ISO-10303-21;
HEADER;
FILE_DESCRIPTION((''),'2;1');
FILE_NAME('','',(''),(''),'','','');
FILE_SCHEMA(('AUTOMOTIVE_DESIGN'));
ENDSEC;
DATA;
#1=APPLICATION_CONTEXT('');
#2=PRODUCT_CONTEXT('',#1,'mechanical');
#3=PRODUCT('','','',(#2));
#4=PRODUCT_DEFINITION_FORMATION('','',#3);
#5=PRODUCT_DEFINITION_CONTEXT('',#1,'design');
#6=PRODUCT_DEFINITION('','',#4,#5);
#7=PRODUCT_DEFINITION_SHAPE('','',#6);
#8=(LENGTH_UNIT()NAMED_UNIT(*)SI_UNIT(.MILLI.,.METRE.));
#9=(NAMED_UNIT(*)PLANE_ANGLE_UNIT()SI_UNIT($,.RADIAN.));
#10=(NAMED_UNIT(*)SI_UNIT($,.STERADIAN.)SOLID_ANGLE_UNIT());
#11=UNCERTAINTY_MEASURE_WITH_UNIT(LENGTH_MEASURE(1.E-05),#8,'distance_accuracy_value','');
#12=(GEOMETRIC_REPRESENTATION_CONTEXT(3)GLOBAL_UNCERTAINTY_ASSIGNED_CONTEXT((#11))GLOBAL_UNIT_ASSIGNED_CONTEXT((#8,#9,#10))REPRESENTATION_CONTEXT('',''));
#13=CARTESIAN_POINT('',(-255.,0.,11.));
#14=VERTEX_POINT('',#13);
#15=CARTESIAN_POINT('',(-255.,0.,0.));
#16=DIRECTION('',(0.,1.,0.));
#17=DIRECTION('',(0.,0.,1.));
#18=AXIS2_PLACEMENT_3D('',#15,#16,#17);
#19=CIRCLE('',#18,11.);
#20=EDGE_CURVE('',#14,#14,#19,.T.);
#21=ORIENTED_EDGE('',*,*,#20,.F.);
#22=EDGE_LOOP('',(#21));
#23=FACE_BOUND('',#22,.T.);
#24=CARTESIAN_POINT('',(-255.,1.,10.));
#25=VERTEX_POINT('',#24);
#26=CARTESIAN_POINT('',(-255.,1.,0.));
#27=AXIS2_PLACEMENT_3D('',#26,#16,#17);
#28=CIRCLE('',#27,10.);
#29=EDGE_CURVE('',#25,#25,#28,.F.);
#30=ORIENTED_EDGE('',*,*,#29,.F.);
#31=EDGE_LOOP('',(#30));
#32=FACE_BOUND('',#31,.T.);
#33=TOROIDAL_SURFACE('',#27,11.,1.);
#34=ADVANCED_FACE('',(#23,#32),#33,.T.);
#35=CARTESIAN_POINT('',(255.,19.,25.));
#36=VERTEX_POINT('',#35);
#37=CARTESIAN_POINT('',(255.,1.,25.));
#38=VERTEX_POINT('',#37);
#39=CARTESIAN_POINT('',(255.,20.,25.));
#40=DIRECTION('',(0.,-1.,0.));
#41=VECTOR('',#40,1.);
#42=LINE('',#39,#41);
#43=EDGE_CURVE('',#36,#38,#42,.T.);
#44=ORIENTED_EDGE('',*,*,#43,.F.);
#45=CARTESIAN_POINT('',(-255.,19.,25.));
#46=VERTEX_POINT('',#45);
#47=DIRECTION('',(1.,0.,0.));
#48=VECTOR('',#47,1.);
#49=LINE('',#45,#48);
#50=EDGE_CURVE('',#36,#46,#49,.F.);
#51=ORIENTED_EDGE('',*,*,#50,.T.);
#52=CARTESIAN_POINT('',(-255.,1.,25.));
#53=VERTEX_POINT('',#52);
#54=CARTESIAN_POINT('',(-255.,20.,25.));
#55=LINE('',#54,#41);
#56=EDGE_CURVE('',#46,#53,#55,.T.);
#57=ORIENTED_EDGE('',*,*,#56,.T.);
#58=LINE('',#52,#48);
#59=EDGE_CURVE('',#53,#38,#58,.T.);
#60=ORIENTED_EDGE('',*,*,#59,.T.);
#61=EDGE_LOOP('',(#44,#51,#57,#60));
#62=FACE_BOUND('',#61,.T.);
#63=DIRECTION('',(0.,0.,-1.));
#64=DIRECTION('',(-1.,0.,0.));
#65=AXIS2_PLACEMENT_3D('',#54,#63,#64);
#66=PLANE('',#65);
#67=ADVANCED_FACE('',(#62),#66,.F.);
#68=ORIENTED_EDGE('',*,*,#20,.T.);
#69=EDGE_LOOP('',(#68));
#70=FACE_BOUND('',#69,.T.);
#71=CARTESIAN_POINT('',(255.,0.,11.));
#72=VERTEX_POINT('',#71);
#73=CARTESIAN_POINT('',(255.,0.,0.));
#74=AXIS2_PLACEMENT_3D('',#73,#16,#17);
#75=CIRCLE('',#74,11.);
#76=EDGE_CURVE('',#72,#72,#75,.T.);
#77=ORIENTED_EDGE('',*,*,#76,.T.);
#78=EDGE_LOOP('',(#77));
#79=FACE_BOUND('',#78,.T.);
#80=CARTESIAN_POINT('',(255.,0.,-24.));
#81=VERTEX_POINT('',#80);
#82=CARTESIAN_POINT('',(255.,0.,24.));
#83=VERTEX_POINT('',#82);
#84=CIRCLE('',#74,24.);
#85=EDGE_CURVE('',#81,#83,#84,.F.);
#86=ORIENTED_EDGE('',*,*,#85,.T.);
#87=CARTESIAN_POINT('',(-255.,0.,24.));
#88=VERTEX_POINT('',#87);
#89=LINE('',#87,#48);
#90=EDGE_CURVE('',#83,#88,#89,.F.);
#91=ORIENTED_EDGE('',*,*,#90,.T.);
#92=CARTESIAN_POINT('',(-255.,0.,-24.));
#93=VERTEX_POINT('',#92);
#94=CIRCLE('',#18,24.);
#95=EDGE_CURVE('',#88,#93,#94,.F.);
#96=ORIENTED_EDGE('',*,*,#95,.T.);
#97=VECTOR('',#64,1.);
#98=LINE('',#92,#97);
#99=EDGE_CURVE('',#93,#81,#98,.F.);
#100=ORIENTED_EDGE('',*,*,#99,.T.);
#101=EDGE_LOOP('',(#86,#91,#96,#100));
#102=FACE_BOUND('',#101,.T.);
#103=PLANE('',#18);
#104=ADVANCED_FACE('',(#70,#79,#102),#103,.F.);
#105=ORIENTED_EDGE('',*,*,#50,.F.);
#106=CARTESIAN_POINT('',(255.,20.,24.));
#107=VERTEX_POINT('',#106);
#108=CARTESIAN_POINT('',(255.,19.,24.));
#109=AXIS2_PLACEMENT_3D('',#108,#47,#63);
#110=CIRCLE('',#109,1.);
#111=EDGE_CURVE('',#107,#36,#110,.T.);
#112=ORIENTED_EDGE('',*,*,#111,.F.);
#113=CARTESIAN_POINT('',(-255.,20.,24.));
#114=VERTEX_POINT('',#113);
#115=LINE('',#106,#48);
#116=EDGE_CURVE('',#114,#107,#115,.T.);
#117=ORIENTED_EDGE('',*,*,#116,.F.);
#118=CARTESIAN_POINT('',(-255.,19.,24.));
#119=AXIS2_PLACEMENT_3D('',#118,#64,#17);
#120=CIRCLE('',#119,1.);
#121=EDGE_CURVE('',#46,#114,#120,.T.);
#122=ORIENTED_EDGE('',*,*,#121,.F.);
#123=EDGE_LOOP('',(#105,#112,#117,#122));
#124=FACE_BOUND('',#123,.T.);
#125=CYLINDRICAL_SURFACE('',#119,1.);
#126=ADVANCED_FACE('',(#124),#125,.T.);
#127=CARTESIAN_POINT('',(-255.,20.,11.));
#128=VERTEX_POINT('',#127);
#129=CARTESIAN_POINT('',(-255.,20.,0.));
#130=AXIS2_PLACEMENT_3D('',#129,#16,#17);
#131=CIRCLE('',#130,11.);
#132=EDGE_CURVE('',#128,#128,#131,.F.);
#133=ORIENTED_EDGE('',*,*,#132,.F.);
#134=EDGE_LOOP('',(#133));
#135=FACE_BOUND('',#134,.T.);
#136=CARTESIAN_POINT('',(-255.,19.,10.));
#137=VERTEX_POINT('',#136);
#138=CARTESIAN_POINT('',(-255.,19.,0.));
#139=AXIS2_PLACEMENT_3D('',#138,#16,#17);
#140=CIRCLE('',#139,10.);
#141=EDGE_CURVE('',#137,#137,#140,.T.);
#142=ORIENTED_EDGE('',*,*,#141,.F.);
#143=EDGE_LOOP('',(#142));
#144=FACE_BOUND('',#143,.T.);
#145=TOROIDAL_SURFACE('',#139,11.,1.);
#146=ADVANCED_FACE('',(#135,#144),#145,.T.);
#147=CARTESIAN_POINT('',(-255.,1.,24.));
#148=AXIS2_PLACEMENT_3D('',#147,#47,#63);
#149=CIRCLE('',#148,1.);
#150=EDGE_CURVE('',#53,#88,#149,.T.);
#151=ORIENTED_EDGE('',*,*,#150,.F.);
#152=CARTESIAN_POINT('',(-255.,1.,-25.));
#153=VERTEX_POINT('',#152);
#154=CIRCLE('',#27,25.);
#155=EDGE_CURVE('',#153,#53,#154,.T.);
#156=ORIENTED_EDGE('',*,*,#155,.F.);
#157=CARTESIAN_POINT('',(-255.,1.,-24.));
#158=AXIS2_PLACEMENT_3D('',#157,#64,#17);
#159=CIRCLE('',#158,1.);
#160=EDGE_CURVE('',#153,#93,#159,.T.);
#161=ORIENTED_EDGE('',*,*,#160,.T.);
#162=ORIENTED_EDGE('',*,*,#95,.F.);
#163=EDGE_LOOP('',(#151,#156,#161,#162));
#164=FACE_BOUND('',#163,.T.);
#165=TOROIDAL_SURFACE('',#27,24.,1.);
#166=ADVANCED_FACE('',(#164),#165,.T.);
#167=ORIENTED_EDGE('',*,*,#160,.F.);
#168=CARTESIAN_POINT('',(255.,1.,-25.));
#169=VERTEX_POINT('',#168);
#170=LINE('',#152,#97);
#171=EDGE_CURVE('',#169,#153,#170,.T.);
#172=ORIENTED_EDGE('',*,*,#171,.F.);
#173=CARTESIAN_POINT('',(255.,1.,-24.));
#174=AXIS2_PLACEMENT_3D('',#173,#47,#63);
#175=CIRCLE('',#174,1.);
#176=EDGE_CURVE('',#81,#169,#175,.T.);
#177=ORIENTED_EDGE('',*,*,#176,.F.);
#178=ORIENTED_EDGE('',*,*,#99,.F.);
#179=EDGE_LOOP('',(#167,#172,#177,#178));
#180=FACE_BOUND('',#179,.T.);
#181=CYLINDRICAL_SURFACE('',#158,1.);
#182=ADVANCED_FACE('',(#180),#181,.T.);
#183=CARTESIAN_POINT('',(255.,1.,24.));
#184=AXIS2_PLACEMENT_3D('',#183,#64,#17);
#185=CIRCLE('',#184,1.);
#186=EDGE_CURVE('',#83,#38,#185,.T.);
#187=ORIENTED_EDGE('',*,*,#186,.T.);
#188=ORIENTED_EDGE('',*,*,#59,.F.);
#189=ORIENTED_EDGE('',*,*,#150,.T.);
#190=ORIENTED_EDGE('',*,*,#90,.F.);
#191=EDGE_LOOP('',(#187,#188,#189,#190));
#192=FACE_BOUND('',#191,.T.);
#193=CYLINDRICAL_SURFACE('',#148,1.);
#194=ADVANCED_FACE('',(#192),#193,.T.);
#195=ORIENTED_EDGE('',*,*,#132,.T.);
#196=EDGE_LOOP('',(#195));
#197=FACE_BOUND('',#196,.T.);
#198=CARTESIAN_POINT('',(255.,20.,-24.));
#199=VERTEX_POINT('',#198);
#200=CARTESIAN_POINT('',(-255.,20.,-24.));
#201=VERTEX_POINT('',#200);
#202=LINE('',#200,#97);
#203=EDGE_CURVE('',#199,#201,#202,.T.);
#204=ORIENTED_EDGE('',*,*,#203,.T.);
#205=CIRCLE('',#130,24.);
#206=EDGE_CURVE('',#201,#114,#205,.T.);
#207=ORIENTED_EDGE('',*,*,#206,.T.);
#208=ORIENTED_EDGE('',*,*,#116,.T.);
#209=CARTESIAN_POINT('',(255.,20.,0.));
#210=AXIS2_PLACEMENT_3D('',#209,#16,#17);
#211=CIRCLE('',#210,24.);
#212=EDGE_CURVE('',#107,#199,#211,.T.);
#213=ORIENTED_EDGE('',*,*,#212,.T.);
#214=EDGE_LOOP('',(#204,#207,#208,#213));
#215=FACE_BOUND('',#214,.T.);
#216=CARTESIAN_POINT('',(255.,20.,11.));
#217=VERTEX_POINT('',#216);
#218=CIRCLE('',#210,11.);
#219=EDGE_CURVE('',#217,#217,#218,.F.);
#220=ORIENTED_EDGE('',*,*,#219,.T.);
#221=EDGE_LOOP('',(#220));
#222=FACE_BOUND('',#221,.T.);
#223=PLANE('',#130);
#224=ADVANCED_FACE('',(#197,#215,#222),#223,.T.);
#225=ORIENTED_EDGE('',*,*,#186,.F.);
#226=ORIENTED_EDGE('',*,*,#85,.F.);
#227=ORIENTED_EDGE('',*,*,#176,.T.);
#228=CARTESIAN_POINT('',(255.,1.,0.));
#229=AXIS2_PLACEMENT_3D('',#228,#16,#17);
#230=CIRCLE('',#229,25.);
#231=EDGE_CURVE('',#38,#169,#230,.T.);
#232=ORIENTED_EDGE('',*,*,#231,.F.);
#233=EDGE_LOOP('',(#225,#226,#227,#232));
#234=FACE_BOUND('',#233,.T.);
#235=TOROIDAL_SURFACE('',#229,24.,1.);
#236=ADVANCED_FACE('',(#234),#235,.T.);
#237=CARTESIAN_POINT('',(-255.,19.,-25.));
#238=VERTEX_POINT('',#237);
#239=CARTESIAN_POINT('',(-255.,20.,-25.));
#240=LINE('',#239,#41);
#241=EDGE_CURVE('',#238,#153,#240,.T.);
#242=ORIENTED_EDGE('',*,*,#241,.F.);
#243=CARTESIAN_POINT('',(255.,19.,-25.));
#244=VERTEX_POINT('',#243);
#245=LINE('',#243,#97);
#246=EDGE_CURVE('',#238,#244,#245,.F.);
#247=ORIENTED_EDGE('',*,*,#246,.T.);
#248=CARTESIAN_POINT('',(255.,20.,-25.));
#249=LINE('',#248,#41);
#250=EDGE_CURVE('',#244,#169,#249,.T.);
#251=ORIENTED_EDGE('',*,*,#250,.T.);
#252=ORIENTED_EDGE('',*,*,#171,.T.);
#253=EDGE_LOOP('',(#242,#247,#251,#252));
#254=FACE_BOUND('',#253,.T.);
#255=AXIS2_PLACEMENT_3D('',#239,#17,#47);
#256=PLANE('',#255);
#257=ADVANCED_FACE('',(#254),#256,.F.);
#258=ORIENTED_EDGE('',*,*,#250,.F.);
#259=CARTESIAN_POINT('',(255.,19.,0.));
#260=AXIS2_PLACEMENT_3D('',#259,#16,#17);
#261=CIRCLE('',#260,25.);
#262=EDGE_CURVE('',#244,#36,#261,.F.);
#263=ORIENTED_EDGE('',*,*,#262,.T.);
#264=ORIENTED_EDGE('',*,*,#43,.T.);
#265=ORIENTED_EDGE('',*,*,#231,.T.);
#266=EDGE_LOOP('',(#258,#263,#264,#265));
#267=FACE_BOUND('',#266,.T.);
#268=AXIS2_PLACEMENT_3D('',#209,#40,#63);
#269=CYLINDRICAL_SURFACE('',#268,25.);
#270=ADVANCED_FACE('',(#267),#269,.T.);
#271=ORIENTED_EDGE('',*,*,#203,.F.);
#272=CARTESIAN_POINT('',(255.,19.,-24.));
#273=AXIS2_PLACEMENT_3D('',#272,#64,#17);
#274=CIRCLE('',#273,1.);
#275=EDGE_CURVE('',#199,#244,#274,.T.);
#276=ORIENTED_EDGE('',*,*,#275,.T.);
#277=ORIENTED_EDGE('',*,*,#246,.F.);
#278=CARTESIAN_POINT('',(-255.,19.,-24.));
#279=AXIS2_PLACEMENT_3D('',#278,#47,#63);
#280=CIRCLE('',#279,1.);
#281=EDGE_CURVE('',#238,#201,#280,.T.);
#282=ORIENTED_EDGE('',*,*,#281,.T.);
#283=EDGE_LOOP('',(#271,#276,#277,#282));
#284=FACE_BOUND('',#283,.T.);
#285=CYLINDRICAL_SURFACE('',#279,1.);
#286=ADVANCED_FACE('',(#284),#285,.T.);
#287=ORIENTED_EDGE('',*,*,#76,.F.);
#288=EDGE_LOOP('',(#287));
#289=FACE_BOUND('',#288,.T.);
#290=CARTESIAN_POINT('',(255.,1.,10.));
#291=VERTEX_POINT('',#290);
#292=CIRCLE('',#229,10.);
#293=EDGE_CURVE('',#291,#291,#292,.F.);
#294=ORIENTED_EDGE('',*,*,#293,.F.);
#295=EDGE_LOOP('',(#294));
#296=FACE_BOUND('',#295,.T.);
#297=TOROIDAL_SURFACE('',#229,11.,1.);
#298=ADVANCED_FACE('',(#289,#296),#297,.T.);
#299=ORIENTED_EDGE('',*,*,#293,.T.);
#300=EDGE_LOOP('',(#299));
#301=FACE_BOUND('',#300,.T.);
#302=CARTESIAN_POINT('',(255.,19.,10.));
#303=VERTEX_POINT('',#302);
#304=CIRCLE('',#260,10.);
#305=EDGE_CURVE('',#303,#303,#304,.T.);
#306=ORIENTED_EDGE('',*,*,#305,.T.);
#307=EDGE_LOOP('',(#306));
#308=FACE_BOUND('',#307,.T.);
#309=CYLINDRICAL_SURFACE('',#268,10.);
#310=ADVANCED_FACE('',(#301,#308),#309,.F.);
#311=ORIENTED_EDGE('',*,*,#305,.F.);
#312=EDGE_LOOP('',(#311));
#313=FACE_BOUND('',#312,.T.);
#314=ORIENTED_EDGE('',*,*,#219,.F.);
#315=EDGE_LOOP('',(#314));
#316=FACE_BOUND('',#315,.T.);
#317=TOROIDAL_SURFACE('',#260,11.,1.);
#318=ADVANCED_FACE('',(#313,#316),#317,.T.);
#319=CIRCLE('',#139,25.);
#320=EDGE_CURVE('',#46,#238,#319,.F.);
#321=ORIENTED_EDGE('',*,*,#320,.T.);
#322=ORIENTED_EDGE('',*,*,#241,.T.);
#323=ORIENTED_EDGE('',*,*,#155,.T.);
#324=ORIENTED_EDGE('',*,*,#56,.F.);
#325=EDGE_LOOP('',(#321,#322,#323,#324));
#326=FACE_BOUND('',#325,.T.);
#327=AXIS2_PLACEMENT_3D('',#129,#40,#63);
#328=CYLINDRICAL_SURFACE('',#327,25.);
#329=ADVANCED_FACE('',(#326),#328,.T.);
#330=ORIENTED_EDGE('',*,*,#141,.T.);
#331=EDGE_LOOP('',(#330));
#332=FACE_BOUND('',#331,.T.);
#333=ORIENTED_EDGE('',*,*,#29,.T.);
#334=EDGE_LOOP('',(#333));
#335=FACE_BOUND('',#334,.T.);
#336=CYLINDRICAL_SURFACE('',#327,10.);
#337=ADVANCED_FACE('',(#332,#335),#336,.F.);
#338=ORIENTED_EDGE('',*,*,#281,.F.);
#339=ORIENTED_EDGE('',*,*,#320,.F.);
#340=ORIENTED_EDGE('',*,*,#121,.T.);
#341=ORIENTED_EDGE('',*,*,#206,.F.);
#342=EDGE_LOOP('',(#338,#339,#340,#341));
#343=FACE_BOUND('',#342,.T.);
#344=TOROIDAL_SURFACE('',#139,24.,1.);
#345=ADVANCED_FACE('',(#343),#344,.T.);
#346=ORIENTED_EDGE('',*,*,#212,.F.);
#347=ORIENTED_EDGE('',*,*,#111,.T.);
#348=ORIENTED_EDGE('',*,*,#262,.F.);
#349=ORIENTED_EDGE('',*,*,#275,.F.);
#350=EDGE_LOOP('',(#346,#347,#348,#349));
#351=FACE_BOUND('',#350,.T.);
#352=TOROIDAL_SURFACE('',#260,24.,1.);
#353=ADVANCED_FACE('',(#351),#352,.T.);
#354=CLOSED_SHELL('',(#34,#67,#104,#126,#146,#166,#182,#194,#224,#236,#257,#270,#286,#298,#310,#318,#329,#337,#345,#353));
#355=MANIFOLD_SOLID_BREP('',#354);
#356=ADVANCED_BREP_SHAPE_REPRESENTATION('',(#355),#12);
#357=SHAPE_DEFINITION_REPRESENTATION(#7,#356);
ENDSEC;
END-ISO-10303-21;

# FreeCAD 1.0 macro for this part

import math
import FreeCAD as App
import Part
import Sketcher

V = App.Vector


def edges_at(feature, points):
    """Names of the edges that pass closest to the given points."""
    edges = feature.Shape.Edges
    near = lambda p: min(range(len(edges)), key=lambda i: edges[i].distToShape(Part.Vertex(*p))[0])
    return sorted({f"Edge{near(p) + 1}" for p in points})

doc = App.newDocument("Part")
params = doc.addObject("Spreadsheet::Sheet", "Params")
for row, (alias, value) in enumerate([
    ("sketch1_diameter", "20 mm"),
    ("sketch1_radius", "25 mm"),
    ("sketch1_width", "510 mm"),
    ("pad1_length", "20 mm"),
    ("fillet_radius", "1 mm"),
], start=1):
    params.set(f"A{row}", alias)
    params.set(f"B{row}", "=" + value)
    params.setAlias(f"B{row}", alias)

body = doc.addObject("PartDesign::Body", "Body")

sketch1 = body.newObject("Sketcher::SketchObject", "Sketch")
sketch1.AttachmentSupport = (doc.getObject("XZ_Plane"), [""])
sketch1.MapMode = "FlatFace"
sketch1.addGeometry([
    Part.LineSegment(V(255, -25, 0), V(-255, -25, 0)),
    Part.ArcOfCircle(Part.Circle(V(-255, 0, 0), V(0, 0, 1), 25), math.radians(90), math.radians(270)),
    Part.LineSegment(V(-255, 25, 0), V(255, 25, 0)),
    Part.ArcOfCircle(Part.Circle(V(255, 0, 0), V(0, 0, 1), 25), math.radians(-90), math.radians(90)),
    Part.Circle(V(255, 0, 0), V(0, 0, 1), 10),
    Part.Circle(V(-255, 0, 0), V(0, 0, 1), 10),
], False)
sketch1.addConstraint([
    Sketcher.Constraint("Tangent", 0, 2, 1, 2),
    Sketcher.Constraint("Tangent", 1, 1, 2, 1),
    Sketcher.Constraint("Tangent", 2, 2, 3, 2),
    Sketcher.Constraint("Tangent", 3, 1, 0, 1),
    Sketcher.Constraint("Horizontal", 0),
    Sketcher.Constraint("Horizontal", 2),
    Sketcher.Constraint("Coincident", 4, 3, 3, 3),
    Sketcher.Constraint("Coincident", 5, 3, 1, 3),
    Sketcher.Constraint("Equal", 4, 5),
    Sketcher.Constraint("Symmetric", 1, 3, 3, 3, -1, 1),
    Sketcher.Constraint("Diameter", 4, 20.0),
    Sketcher.Constraint("Radius", 1, 25.0),
    Sketcher.Constraint("DistanceX", 0, 2, 0, 1, 510.0),
])
sketch1.setExpression("Constraints[10]", "Params.sketch1_diameter")
sketch1.setExpression("Constraints[11]", "Params.sketch1_radius")
sketch1.setExpression("Constraints[12]", "Params.sketch1_width")
pad1 = body.newObject("PartDesign::Pad", "Pad")
pad1.Profile = sketch1
pad1.setExpression("Length", "Params.pad1_length")
pad1.Reversed = True
doc.recompute()

fillet = body.newObject("PartDesign::Fillet", "Fillet")
fillet.Base = (pad1, edges_at(pad1, [
    (-265, 0, 0),
    (-265, 20, 0),
    (280, 20, 0),
    (245, 0, 0),
    (245, 20, 0),
    (0, 20, -25),
    (-280, 20, 0),
    (0, 0, -25),
    (280, 0, 0),
    (0, 0, 25),
    (-280, 0, 0),
    (0, 20, 25),
]))
fillet.setExpression("Radius", "Params.fillet_radius")

doc.recompute()
